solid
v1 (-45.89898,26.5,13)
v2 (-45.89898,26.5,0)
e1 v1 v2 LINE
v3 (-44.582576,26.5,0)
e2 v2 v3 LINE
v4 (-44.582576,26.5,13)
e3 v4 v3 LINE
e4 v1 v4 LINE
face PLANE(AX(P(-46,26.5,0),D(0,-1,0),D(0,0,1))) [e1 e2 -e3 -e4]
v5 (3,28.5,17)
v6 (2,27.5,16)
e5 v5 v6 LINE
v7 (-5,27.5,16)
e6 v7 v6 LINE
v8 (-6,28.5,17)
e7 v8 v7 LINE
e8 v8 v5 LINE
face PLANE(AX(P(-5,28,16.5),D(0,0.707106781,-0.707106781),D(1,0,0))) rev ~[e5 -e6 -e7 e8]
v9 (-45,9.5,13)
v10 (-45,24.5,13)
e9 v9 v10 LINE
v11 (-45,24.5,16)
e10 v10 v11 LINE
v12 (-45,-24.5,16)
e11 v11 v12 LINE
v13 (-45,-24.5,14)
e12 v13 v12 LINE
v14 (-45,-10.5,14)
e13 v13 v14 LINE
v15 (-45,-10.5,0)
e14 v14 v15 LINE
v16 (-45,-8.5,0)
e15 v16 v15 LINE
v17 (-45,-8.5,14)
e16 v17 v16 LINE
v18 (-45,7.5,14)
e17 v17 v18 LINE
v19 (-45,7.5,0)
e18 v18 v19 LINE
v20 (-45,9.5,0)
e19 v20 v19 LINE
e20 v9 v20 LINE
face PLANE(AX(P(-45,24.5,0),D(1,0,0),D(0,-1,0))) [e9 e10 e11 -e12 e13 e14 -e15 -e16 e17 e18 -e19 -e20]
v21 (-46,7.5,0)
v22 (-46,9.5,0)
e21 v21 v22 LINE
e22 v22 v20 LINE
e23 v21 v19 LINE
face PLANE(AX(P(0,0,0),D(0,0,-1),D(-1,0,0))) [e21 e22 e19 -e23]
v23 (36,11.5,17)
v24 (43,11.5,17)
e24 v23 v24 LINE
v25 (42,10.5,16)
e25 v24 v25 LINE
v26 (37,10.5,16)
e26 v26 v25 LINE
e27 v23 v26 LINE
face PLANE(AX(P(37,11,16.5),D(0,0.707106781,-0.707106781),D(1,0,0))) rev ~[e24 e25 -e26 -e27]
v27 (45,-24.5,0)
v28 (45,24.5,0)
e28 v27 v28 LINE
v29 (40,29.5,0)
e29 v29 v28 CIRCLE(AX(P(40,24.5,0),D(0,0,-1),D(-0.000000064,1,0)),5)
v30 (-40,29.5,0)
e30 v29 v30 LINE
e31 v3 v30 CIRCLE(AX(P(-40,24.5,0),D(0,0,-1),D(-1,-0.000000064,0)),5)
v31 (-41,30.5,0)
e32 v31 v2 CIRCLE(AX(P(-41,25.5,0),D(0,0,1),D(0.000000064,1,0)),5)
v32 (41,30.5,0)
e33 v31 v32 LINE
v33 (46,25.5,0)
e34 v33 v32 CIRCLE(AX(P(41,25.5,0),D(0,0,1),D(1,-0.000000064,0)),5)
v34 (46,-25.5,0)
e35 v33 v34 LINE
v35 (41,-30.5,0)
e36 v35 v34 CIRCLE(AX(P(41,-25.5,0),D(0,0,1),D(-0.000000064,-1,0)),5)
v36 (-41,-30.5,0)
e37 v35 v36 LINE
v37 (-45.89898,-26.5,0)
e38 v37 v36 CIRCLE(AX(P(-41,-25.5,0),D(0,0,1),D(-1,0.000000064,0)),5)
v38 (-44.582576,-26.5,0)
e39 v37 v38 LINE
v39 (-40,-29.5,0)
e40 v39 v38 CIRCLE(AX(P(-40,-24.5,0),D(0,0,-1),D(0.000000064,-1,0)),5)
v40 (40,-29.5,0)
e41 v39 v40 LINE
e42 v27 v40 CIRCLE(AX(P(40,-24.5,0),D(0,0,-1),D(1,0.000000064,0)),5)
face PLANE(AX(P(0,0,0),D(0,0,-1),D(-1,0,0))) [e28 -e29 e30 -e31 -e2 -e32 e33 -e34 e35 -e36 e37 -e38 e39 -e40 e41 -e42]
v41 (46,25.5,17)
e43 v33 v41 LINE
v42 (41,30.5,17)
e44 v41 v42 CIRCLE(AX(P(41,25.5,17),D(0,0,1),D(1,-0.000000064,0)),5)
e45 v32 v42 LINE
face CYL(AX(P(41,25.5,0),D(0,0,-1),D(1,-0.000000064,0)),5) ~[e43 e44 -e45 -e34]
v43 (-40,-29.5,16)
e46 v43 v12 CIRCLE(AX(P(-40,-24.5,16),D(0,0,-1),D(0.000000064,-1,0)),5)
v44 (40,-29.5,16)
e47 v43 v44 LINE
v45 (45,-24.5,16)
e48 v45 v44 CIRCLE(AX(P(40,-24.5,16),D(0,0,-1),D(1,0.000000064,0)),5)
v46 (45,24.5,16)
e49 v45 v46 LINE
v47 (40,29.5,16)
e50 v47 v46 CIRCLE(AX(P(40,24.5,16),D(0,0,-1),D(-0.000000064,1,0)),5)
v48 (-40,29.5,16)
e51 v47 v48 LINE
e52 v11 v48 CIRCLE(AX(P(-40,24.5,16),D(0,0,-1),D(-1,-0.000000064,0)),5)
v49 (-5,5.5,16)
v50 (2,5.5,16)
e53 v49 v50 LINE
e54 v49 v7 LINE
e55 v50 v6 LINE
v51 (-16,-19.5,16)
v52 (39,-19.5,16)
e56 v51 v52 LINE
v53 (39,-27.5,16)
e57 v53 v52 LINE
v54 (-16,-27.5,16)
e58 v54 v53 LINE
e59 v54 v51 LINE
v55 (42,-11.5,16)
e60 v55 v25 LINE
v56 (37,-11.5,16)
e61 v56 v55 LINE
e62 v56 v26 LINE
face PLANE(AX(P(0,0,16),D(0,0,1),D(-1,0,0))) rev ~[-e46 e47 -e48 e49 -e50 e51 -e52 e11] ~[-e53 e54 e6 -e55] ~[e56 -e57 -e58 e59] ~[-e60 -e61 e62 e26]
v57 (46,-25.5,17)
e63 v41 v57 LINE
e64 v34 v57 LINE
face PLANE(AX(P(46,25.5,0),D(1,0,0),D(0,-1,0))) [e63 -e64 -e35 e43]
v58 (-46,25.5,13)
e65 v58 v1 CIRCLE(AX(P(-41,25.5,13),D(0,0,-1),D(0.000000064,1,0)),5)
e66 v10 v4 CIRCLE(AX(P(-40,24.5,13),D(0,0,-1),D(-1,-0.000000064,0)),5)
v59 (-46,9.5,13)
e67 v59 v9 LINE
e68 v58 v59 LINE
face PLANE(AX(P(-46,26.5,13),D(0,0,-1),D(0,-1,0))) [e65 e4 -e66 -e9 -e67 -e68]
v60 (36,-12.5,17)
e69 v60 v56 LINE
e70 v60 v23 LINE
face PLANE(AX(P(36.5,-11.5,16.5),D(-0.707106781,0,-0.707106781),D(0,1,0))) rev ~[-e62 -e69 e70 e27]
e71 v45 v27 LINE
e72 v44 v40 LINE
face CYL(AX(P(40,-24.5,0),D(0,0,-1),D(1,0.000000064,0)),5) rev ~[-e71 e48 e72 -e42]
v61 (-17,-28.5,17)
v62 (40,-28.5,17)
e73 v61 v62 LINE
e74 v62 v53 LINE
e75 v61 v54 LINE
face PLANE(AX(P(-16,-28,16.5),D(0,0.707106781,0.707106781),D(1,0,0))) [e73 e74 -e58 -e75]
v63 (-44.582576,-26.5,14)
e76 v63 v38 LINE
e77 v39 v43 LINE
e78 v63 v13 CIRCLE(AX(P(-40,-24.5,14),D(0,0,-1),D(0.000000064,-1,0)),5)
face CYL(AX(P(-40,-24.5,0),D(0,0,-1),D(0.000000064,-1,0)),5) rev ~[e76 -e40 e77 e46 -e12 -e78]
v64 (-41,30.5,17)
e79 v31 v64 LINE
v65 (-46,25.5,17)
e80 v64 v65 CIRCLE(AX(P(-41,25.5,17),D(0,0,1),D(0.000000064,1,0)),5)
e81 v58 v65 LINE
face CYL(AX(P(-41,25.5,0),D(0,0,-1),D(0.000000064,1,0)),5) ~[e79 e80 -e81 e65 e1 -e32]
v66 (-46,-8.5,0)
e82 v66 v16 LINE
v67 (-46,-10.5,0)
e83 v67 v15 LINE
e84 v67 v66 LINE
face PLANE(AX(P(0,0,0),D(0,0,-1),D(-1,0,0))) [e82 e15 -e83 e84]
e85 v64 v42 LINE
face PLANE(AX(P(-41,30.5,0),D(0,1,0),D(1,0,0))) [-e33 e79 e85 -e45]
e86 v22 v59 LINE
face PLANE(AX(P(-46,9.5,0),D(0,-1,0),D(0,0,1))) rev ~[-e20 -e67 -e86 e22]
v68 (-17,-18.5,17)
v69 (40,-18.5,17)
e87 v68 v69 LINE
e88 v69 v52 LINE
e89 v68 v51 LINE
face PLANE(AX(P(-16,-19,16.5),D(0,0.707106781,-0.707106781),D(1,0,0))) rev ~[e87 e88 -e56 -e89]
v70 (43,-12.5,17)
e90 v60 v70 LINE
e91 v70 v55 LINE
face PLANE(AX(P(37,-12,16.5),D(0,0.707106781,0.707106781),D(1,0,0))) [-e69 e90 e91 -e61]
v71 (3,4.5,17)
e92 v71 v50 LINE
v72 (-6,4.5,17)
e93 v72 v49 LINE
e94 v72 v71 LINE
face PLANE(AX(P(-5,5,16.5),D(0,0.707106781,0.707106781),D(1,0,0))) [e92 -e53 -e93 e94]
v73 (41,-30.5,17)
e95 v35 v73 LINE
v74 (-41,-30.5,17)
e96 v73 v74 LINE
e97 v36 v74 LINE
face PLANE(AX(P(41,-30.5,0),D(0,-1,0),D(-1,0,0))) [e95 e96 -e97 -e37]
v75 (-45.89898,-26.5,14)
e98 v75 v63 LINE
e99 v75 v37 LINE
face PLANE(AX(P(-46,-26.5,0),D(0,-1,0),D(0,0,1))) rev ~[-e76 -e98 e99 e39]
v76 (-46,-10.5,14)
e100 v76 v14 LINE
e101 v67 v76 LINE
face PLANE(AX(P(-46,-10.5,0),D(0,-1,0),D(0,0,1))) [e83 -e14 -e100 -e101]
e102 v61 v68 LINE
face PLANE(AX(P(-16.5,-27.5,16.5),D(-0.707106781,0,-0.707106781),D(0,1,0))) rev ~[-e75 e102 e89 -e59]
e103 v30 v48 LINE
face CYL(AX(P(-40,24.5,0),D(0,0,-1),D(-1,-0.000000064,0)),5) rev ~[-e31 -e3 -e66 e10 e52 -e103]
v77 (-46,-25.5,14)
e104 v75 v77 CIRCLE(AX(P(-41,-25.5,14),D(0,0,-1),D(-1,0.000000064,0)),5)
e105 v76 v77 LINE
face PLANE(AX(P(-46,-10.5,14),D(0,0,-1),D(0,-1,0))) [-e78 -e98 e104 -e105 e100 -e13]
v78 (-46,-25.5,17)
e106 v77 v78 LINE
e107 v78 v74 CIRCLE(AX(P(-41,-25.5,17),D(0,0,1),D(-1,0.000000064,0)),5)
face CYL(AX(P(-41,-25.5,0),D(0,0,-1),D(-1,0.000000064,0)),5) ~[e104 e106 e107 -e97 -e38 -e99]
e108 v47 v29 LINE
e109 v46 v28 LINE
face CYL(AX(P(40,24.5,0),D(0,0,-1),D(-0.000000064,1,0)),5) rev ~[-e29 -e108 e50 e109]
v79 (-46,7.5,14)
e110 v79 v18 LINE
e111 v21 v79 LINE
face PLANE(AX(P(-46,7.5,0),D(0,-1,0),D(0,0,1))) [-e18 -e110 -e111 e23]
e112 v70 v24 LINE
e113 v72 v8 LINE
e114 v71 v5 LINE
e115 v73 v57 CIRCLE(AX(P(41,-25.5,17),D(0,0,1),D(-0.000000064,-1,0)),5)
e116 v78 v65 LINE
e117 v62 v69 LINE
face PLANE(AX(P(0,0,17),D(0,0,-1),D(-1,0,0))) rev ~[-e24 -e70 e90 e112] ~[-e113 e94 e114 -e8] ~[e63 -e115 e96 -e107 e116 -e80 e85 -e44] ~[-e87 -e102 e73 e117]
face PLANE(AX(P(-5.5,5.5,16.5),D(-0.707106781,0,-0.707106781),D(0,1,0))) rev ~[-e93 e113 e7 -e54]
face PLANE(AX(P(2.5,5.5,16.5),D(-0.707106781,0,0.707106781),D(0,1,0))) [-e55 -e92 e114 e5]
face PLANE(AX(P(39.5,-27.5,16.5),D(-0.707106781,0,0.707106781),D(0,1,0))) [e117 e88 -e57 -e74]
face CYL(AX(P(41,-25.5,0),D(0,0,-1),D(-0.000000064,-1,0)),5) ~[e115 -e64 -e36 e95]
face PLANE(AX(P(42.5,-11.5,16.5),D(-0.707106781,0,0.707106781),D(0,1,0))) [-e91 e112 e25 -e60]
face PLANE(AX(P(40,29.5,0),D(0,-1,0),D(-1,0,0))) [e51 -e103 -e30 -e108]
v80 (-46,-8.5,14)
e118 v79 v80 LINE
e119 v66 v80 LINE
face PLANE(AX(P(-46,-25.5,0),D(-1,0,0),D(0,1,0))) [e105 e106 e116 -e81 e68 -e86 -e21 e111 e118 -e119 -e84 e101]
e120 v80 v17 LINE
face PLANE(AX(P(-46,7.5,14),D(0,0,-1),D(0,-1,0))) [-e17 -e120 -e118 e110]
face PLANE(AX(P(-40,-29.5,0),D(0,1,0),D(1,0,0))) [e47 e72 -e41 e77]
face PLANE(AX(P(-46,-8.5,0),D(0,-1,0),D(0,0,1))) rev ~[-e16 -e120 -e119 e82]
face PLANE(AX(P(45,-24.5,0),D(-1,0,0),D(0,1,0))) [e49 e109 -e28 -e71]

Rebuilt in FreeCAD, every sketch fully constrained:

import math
import FreeCAD as App
import Part
import Sketcher
Q = App.Units.Quantity


def edges_at(feature, points):
    """Names of the edges that pass closest to the given points."""
    edges = feature.Shape.Edges
    near = lambda p: min(range(len(edges)), key=lambda i: edges[i].distToShape(Part.Vertex(*p))[0])
    return sorted({f"Edge{near(p) + 1}" for p in points})


def add_polygon(sketch, points):
    """Adds a closed chain of lines whose ends are joined by coincident constraints."""
    first, n = sketch.GeometryCount, len(points)
    for a, b in zip(points, points[1:] + points[:1]):
        sketch.addGeometry(Part.LineSegment(App.Vector(*a, 0), App.Vector(*b, 0)), False)
    for i in range(n):
        sketch.addConstraint(Sketcher.Constraint("Coincident", first + i, 2, first + (i + 1) % n, 1))

doc = App.newDocument("Part")
body = doc.addObject("PartDesign::Body", "Body")

# Sketch on XY plane
sketch1 = doc.addObject("Sketcher::SketchObject", "Sketch")
body.addObject(sketch1)
sketch1.AttachmentSupport = (doc.XY_Plane, [""])
sketch1.MapMode = "FlatFace"
sketch1.addGeometry([
    Part.LineSegment(App.Vector(41, 30.5, 0), App.Vector(-41, 30.5, 0)),  # 0
    Part.ArcOfCircle(Part.Circle(App.Vector(-41, 25.5, 0), App.Vector(0, 0, 1), 5), math.radians(89.999996), math.radians(180.000004)),  # 1
    Part.LineSegment(App.Vector(-46, 25.5, 0), App.Vector(-46, -25.5, 0)),  # 2
    Part.ArcOfCircle(Part.Circle(App.Vector(-41, -25.5, 0), App.Vector(0, 0, 1), 5), math.radians(179.999996), math.radians(270.000004)),  # 3
    Part.LineSegment(App.Vector(-41, -30.5, 0), App.Vector(41, -30.5, 0)),  # 4
    Part.ArcOfCircle(Part.Circle(App.Vector(41, -25.5, 0), App.Vector(0, 0, 1), 5), math.radians(-90.000004), math.radians(0.000004)),  # 5
    Part.LineSegment(App.Vector(46, -25.5, 0), App.Vector(46, 25.5, 0)),  # 6
    Part.ArcOfCircle(Part.Circle(App.Vector(41, 25.5, 0), App.Vector(0, 0, 1), 5), math.radians(-0.000004), math.radians(90.000004)),  # 7
], False)
sketch1.addConstraint([
    Sketcher.Constraint("Tangent", 0, 2, 1, 1),
    Sketcher.Constraint("Tangent", 1, 2, 2, 1),
    Sketcher.Constraint("Tangent", 2, 2, 3, 1),
    Sketcher.Constraint("Tangent", 3, 2, 4, 1),
    Sketcher.Constraint("Tangent", 4, 2, 5, 1),
    Sketcher.Constraint("Tangent", 5, 2, 6, 1),
    Sketcher.Constraint("Tangent", 6, 2, 7, 1),
    Sketcher.Constraint("Tangent", 7, 2, 0, 1),
    Sketcher.Constraint("Horizontal", 0),
    Sketcher.Constraint("Vertical", 2),
    Sketcher.Constraint("Horizontal", 4),
    Sketcher.Constraint("Vertical", 6),
    Sketcher.Constraint("Equal", 1, 3),
    Sketcher.Constraint("Equal", 3, 5),
    Sketcher.Constraint("Equal", 5, 7),
    Sketcher.Constraint("Symmetric", 1, 3, 5, 3, -1, 1),
    Sketcher.Constraint("Radius", 1, Q("5 mm")),
    Sketcher.Constraint("DistanceX", 0, 2, 0, 1, Q("82 mm")),
    Sketcher.Constraint("DistanceY", 2, 2, 2, 1, Q("51 mm")),
])
pad1 = doc.addObject("PartDesign::Pad", "Pad")
body.addObject(pad1)
pad1.Profile = sketch1
pad1.Length = 17

# Sketch on XY plane
sketch2 = doc.addObject("Sketcher::SketchObject", "Sketch001")
body.addObject(sketch2)
sketch2.AttachmentSupport = (doc.XY_Plane, [""])
sketch2.MapMode = "FlatFace"
sketch2.AttachmentOffset = App.Placement(App.Vector(0, 0, 17), App.Rotation())
add_polygon(sketch2, [(-16, -19.5), (-16, -27.5), (39, -27.5), (39, -19.5)])  # lines 0-3
sketch2.addConstraint([
    Sketcher.Constraint("Vertical", 0),
    Sketcher.Constraint("Horizontal", 1),
    Sketcher.Constraint("Vertical", 2),
    Sketcher.Constraint("Horizontal", 3),
    Sketcher.Constraint("DistanceX", 1, 1, 1, 2, Q("55 mm")),
    Sketcher.Constraint("DistanceY", 0, 2, 0, 1, Q("8 mm")),
    Sketcher.Constraint("DistanceX", 0, 2, -1, 1, Q("16 mm")),
    Sketcher.Constraint("DistanceY", 0, 2, -1, 1, Q("27.5 mm")),
])
pocket1 = doc.addObject("PartDesign::Pocket", "Pocket")
body.addObject(pocket1)
pocket1.Profile = sketch2
pocket1.Type = "ThroughAll"
doc.recompute()

chamfer = doc.addObject("PartDesign::Chamfer", "Chamfer")
body.addObject(chamfer)
chamfer.Base = (pocket1, edges_at(pocket1, [
    (11.5, -27.5, 17),
    (-16, -23.5, 17),
    (11.5, -19.5, 17),
    (39, -23.5, 17),
]))
chamfer.Size = 1

# Sketch on XY plane
sketch3 = doc.addObject("Sketcher::SketchObject", "Sketch002")
body.addObject(sketch3)
sketch3.AttachmentSupport = (doc.XY_Plane, [""])
sketch3.MapMode = "FlatFace"
sketch3.AttachmentOffset = App.Placement(App.Vector(0, 0, 17), App.Rotation())
add_polygon(sketch3, [(-5, 27.5), (-5, 5.5), (2, 5.5), (2, 27.5)])  # lines 0-3
sketch3.addConstraint([
    Sketcher.Constraint("Vertical", 0),
    Sketcher.Constraint("Horizontal", 1),
    Sketcher.Constraint("Vertical", 2),
    Sketcher.Constraint("Horizontal", 3),
    Sketcher.Constraint("DistanceX", 1, 1, 1, 2, Q("7 mm")),
    Sketcher.Constraint("DistanceY", 0, 2, 0, 1, Q("22 mm")),
    Sketcher.Constraint("DistanceX", 0, 2, -1, 1, Q("5 mm")),
    Sketcher.Constraint("DistanceY", -1, 1, 0, 2, Q("5.5 mm")),
])
pocket2 = doc.addObject("PartDesign::Pocket", "Pocket001")
body.addObject(pocket2)
pocket2.Profile = sketch3
pocket2.Type = "ThroughAll"
doc.recompute()

chamfer2 = doc.addObject("PartDesign::Chamfer", "Chamfer001")
body.addObject(chamfer2)
chamfer2.Base = (pocket2, edges_at(pocket2, [
    (-5, 16.5, 17),
    (-1.5, 27.5, 17),
    (2, 16.5, 17),
    (-1.5, 5.5, 17),
]))
chamfer2.Size = 1

# Sketch on XY plane
sketch4 = doc.addObject("Sketcher::SketchObject", "Sketch003")
body.addObject(sketch4)
sketch4.AttachmentSupport = (doc.XY_Plane, [""])
sketch4.MapMode = "FlatFace"
sketch4.AttachmentOffset = App.Placement(App.Vector(0, 0, 17), App.Rotation())
add_polygon(sketch4, [(37, 10.5), (37, -11.5), (42, -11.5), (42, 10.5)])  # lines 0-3
sketch4.addConstraint([
    Sketcher.Constraint("Vertical", 0),
    Sketcher.Constraint("Horizontal", 1),
    Sketcher.Constraint("Vertical", 2),
    Sketcher.Constraint("Horizontal", 3),
    Sketcher.Constraint("DistanceX", 1, 1, 1, 2, Q("5 mm")),
    Sketcher.Constraint("DistanceY", 0, 2, 0, 1, Q("22 mm")),
    Sketcher.Constraint("DistanceX", -1, 1, 0, 2, Q("37 mm")),
    Sketcher.Constraint("DistanceY", 0, 2, -1, 1, Q("11.5 mm")),
])
pocket3 = doc.addObject("PartDesign::Pocket", "Pocket002")
body.addObject(pocket3)
pocket3.Profile = sketch4
pocket3.Type = "ThroughAll"
doc.recompute()

chamfer3 = doc.addObject("PartDesign::Chamfer", "Chamfer002")
body.addObject(chamfer3)
chamfer3.Base = (pocket3, edges_at(pocket3, [
    (39.5, -11.5, 17),
    (42, -0.5, 17),
    (37, -0.5, 17),
    (39.5, 10.5, 17),
]))
chamfer3.Size = 1

# Sketch on XY plane
sketch5 = doc.addObject("Sketcher::SketchObject", "Sketch004")
body.addObject(sketch5)
sketch5.AttachmentSupport = (doc.XY_Plane, [""])
sketch5.MapMode = "FlatFace"
sketch5.addGeometry([
    Part.LineSegment(App.Vector(40, -29.5, 0), App.Vector(-40, -29.5, 0)),  # 0
    Part.ArcOfCircle(Part.Circle(App.Vector(-40, -24.5, 0), App.Vector(0, 0, 1), 5), math.radians(179.999996), math.radians(270.000004)),  # 1
    Part.LineSegment(App.Vector(-45, -24.5, 0), App.Vector(-45, 24.5, 0)),  # 2
    Part.ArcOfCircle(Part.Circle(App.Vector(-40, 24.5, 0), App.Vector(0, 0, 1), 5), math.radians(89.999996), math.radians(180.000004)),  # 3
    Part.LineSegment(App.Vector(-40, 29.5, 0), App.Vector(40, 29.5, 0)),  # 4
    Part.ArcOfCircle(Part.Circle(App.Vector(40, 24.5, 0), App.Vector(0, 0, 1), 5), math.radians(-0.000004), math.radians(90.000004)),  # 5
    Part.LineSegment(App.Vector(45, 24.5, 0), App.Vector(45, -24.5, 0)),  # 6
    Part.ArcOfCircle(Part.Circle(App.Vector(40, -24.5, 0), App.Vector(0, 0, 1), 5), math.radians(-90.000004), math.radians(0.000004)),  # 7
], False)
sketch5.addConstraint([
    Sketcher.Constraint("Tangent", 0, 2, 1, 2),
    Sketcher.Constraint("Tangent", 1, 1, 2, 1),
    Sketcher.Constraint("Tangent", 2, 2, 3, 2),
    Sketcher.Constraint("Tangent", 3, 1, 4, 1),
    Sketcher.Constraint("Tangent", 4, 2, 5, 2),
    Sketcher.Constraint("Tangent", 5, 1, 6, 1),
    Sketcher.Constraint("Tangent", 6, 2, 7, 2),
    Sketcher.Constraint("Tangent", 7, 1, 0, 1),
    Sketcher.Constraint("Horizontal", 0),
    Sketcher.Constraint("Vertical", 2),
    Sketcher.Constraint("Horizontal", 4),
    Sketcher.Constraint("Vertical", 6),
    Sketcher.Constraint("Equal", 1, 3),
    Sketcher.Constraint("Equal", 3, 5),
    Sketcher.Constraint("Equal", 5, 7),
    Sketcher.Constraint("Symmetric", 1, 3, 5, 3, -1, 1),
    Sketcher.Constraint("Radius", 1, Q("5 mm")),
    Sketcher.Constraint("DistanceX", 0, 2, 0, 1, Q("80 mm")),
    Sketcher.Constraint("DistanceY", 2, 1, 2, 2, Q("49 mm")),
])
pocket4 = doc.addObject("PartDesign::Pocket", "Pocket003")
body.addObject(pocket4)
pocket4.Profile = sketch5
pocket4.Length = 7
pocket4.Reversed = True

# Sketch on XY plane
sketch6 = doc.addObject("Sketcher::SketchObject", "Sketch005")
body.addObject(sketch6)
sketch6.AttachmentSupport = (doc.XY_Plane, [""])
sketch6.MapMode = "FlatFace"
sketch6.addGeometry([
    Part.LineSegment(App.Vector(40, -29.5, 0), App.Vector(-40, -29.5, 0)),  # 0
    Part.ArcOfCircle(Part.Circle(App.Vector(-40, -24.5, 0), App.Vector(0, 0, 1), 5), math.radians(179.999996), math.radians(270.000004)),  # 1
    Part.LineSegment(App.Vector(-45, -24.5, 0), App.Vector(-45, 24.5, 0)),  # 2
    Part.ArcOfCircle(Part.Circle(App.Vector(-40, 24.5, 0), App.Vector(0, 0, 1), 5), math.radians(89.999996), math.radians(180.000004)),  # 3
    Part.LineSegment(App.Vector(-40, 29.5, 0), App.Vector(40, 29.5, 0)),  # 4
    Part.ArcOfCircle(Part.Circle(App.Vector(40, 24.5, 0), App.Vector(0, 0, 1), 5), math.radians(-0.000004), math.radians(90.000004)),  # 5
    Part.LineSegment(App.Vector(45, 24.5, 0), App.Vector(45, -24.5, 0)),  # 6
    Part.ArcOfCircle(Part.Circle(App.Vector(40, -24.5, 0), App.Vector(0, 0, 1), 5), math.radians(-90.000004), math.radians(0.000004)),  # 7
], False)
sketch6.addConstraint([
    Sketcher.Constraint("Tangent", 0, 2, 1, 2),
    Sketcher.Constraint("Tangent", 1, 1, 2, 1),
    Sketcher.Constraint("Tangent", 2, 2, 3, 2),
    Sketcher.Constraint("Tangent", 3, 1, 4, 1),
    Sketcher.Constraint("Tangent", 4, 2, 5, 2),
    Sketcher.Constraint("Tangent", 5, 1, 6, 1),
    Sketcher.Constraint("Tangent", 6, 2, 7, 2),
    Sketcher.Constraint("Tangent", 7, 1, 0, 1),
    Sketcher.Constraint("Horizontal", 0),
    Sketcher.Constraint("Vertical", 2),
    Sketcher.Constraint("Horizontal", 4),
    Sketcher.Constraint("Vertical", 6),
    Sketcher.Constraint("Equal", 1, 3),
    Sketcher.Constraint("Equal", 3, 5),
    Sketcher.Constraint("Equal", 5, 7),
    Sketcher.Constraint("Symmetric", 1, 3, 5, 3, -1, 1),
    Sketcher.Constraint("Radius", 1, Q("5 mm")),
    Sketcher.Constraint("DistanceX", 0, 2, 0, 1, Q("80 mm")),
    Sketcher.Constraint("DistanceY", 2, 1, 2, 2, Q("49 mm")),
])
pocket5 = doc.addObject("PartDesign::Pocket", "Pocket004")
body.addObject(pocket5)
pocket5.Profile = sketch6
pocket5.Length = 16
pocket5.Reversed = True

# Sketch on YZ plane
sketch7 = doc.addObject("Sketcher::SketchObject", "Sketch006")
body.addObject(sketch7)
sketch7.AttachmentSupport = (doc.YZ_Plane, [""])
sketch7.MapMode = "FlatFace"
sketch7.AttachmentOffset = App.Placement(App.Vector(0, 0, -46), App.Rotation())
add_polygon(sketch7, [(26.5, 13), (26.5, 0), (9.5, 0), (9.5, 13)])  # lines 0-3
add_polygon(sketch7, [(7.5, 14), (7.5, 0), (-8.5, 0), (-8.5, 14)])  # lines 4-7
add_polygon(sketch7, [(-10.5, 14), (-10.5, 0), (-26.5, 0), (-26.5, 14)])  # lines 8-11
sketch7.addConstraint([
    Sketcher.Constraint("Vertical", 0),
    Sketcher.Constraint("Horizontal", 1),
    Sketcher.Constraint("Vertical", 2),
    Sketcher.Constraint("Horizontal", 3),
    Sketcher.Constraint("Vertical", 4),
    Sketcher.Constraint("Horizontal", 5),
    Sketcher.Constraint("Vertical", 6),
    Sketcher.Constraint("Horizontal", 7),
    Sketcher.Constraint("Vertical", 8),
    Sketcher.Constraint("Horizontal", 9),
    Sketcher.Constraint("Vertical", 10),
    Sketcher.Constraint("Horizontal", 11),
    Sketcher.Constraint("Symmetric", 0, 2, 9, 2, -1, 1),
    Sketcher.Constraint("PointOnObject", 0, 2, -1),
    Sketcher.Constraint("PointOnObject", 4, 2, -1),
    Sketcher.Constraint("Horizontal", 7, 2, 10, 2),
    Sketcher.Constraint("Equal", 7, 9),
    Sketcher.Constraint("DistanceX", 1, 2, 1, 1, Q("17 mm")),
    Sketcher.Constraint("DistanceX", 5, 2, 5, 1, Q("16 mm")),
    Sketcher.Constraint("DistanceY", 0, 2, 0, 1, Q("13 mm")),
    Sketcher.Constraint("DistanceY", 4, 2, 4, 1, Q("14 mm")),
    Sketcher.Constraint("DistanceX", 4, 2, 1, 2, Q("2 mm")),
    Sketcher.Constraint("DistanceX", 8, 2, 5, 2, Q("2 mm")),
])
pocket6 = doc.addObject("PartDesign::Pocket", "Pocket005")
body.addObject(pocket6)
pocket6.Profile = sketch7
pocket6.Length = 5
pocket6.Reversed = True

doc.recompute()
